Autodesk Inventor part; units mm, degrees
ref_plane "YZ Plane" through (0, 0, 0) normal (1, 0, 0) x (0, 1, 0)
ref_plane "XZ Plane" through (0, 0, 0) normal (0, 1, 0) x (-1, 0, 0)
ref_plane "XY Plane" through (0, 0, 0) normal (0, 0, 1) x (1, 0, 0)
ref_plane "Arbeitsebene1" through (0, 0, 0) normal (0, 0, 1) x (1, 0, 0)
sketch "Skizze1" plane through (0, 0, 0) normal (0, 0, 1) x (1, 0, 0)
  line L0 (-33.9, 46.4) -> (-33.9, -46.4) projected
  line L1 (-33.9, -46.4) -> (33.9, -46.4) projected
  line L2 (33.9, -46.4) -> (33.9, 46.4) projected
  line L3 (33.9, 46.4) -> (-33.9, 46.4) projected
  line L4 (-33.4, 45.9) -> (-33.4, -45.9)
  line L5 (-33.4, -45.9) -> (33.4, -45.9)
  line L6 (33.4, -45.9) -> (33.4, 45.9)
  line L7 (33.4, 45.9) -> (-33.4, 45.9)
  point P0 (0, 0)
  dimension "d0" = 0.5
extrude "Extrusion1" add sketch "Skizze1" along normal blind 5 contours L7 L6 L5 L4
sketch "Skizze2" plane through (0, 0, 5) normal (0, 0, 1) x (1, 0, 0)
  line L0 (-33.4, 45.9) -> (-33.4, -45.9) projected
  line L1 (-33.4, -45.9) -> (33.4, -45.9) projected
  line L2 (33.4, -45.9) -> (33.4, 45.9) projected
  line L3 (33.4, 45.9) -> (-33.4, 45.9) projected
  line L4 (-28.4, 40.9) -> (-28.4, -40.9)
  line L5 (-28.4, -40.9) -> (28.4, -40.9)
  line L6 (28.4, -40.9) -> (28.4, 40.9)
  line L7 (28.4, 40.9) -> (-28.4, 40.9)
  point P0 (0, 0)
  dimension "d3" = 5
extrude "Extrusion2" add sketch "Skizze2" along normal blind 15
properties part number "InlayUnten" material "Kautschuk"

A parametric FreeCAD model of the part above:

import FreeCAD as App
import Part
import Sketcher

V = App.Vector
Q = App.Units.Quantity


def add_polygon(sketch, points):
    """Adds a closed chain of lines whose ends are joined by coincident constraints."""
    first, n = sketch.GeometryCount, len(points)
    for a, b in zip(points, points[1:] + points[:1]):
        sketch.addGeometry(Part.LineSegment(App.Vector(*a, 0), App.Vector(*b, 0)), False)
    for i in range(n):
        sketch.addConstraint(Sketcher.Constraint("Coincident", first + i, 2, first + (i + 1) % n, 1))

doc = App.newDocument("Part")
body = doc.addObject("PartDesign::Body", "Body")

sketch1 = body.newObject("Sketcher::SketchObject", "Sketch")
sketch1.AttachmentSupport = (doc.getObject("XY_Plane"), [""])
sketch1.MapMode = "FlatFace"
add_polygon(sketch1, [(33, 46), (-33, 46), (-33, -46), (33, -46)])
sketch1.addConstraint(Sketcher.Constraint("Horizontal", 0))
sketch1.addConstraint(Sketcher.Constraint("Vertical", 1))
sketch1.addConstraint(Sketcher.Constraint("Horizontal", 2))
sketch1.addConstraint(Sketcher.Constraint("Vertical", 3))
sketch1.addConstraint(Sketcher.Constraint("Symmetric", 0, 2, 2, 2, -1, 1))
sketch1.addConstraint(Sketcher.Constraint("DistanceX", 0, 2, 0, 1, Q("66.8 mm")))
sketch1.addConstraint(Sketcher.Constraint("DistanceY", 1, 2, 1, 1, Q("91.8 mm")))
pad1 = body.newObject("PartDesign::Pad", "Pad")
pad1.Profile = sketch1
pad1.Length = 5

sketch2 = body.newObject("Sketcher::SketchObject", "Sketch001")
sketch2.AttachmentSupport = (doc.getObject("XY_Plane"), [""])
sketch2.MapMode = "FlatFace"
sketch2.AttachmentOffset = App.Placement(V(0, 0, 5), App.Rotation())
add_polygon(sketch2, [(33, 46), (-33, 46), (-33, -46), (33, -46)])
add_polygon(sketch2, [(-28, -41), (-28, 41), (28, 41), (28, -41)])
sketch2.addConstraint(Sketcher.Constraint("Horizontal", 0))
sketch2.addConstraint(Sketcher.Constraint("Vertical", 1))
sketch2.addConstraint(Sketcher.Constraint("Horizontal", 2))
sketch2.addConstraint(Sketcher.Constraint("Vertical", 3))
sketch2.addConstraint(Sketcher.Constraint("Vertical", 4))
sketch2.addConstraint(Sketcher.Constraint("Horizontal", 5))
sketch2.addConstraint(Sketcher.Constraint("Vertical", 6))
sketch2.addConstraint(Sketcher.Constraint("Horizontal", 7))
sketch2.addConstraint(Sketcher.Constraint("Symmetric", 0, 2, 2, 2, -1, 1))
sketch2.addConstraint(Sketcher.Constraint("Symmetric", 4, 2, 6, 2, -1, 1))
sketch2.addConstraint(Sketcher.Constraint("DistanceX", 0, 2, 4, 2, Q("5 mm")))
sketch2.addConstraint(Sketcher.Constraint("DistanceY", 4, 2, 0, 2, Q("5 mm")))
sketch2.addConstraint(Sketcher.Constraint("DistanceX", 0, 2, 0, 1, Q("66.8 mm")))
sketch2.addConstraint(Sketcher.Constraint("DistanceY", 1, 2, 1, 1, Q("91.8 mm")))
pad2 = body.newObject("PartDesign::Pad", "Pad001")
pad2.Profile = sketch2
pad2.Length = 15

doc.recompute()
